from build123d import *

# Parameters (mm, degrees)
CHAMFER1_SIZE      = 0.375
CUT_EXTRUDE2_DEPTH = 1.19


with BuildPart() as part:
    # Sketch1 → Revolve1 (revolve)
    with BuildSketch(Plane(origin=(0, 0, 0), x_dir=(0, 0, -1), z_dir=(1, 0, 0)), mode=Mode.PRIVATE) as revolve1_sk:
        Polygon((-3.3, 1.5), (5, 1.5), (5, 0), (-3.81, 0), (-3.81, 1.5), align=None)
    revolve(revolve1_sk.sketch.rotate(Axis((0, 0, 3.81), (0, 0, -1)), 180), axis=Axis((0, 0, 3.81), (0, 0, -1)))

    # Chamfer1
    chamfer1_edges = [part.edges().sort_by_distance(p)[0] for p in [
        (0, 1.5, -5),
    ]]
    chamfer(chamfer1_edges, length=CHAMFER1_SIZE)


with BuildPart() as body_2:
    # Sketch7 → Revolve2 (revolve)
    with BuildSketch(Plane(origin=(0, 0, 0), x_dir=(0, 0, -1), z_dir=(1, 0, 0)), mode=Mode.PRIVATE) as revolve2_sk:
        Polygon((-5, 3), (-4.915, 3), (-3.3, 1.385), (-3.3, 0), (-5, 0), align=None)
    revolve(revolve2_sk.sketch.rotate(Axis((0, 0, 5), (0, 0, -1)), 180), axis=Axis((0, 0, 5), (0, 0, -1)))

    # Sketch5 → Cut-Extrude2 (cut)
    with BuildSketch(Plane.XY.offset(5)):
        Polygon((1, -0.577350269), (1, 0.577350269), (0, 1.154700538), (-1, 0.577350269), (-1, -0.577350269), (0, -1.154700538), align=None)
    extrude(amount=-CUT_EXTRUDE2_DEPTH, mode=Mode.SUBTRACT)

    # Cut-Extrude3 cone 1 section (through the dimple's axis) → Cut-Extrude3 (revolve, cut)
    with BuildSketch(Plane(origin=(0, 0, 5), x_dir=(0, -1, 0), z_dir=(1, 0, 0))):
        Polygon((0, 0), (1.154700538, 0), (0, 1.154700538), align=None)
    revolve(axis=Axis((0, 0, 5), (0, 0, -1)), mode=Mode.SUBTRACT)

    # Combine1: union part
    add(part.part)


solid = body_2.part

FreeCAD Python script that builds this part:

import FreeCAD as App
import Part
import Sketcher
Q = App.Units.Quantity


def edges_at(feature, points):
    """Names of the edges that pass closest to the given points."""
    edges = feature.Shape.Edges
    near = lambda p: min(range(len(edges)), key=lambda i: edges[i].distToShape(Part.Vertex(*p))[0])
    return sorted({f"Edge{near(p) + 1}" for p in points})

doc = App.newDocument("Part")
body = doc.addObject("PartDesign::Body", "Body")

# Sketch on YZ plane
sketch1 = body.newObject("Sketcher::SketchObject", "Sketch")
sketch1.AttachmentSupport = (doc.getObject("YZ_Plane"), [""])
sketch1.MapMode = "FlatFace"
sketch1.addGeometry(Part.LineSegment(App.Vector(1.5, -5, 0), App.Vector(1.5, 3.81, 0)), False)
sketch1.addGeometry(Part.LineSegment(App.Vector(1.5, 3.81, 0), App.Vector(0, 3.81, 0)), False)
sketch1.addGeometry(Part.LineSegment(App.Vector(0, 3.81, 0), App.Vector(0, -5, 0)), False)
sketch1.addGeometry(Part.LineSegment(App.Vector(0, -5, 0), App.Vector(1.5, -5, 0)), False)
sketch1.addConstraint(Sketcher.Constraint("Coincident", 0, 2, 1, 1))
sketch1.addConstraint(Sketcher.Constraint("Coincident", 1, 2, 2, 1))
sketch1.addConstraint(Sketcher.Constraint("Coincident", 2, 2, 3, 1))
sketch1.addConstraint(Sketcher.Constraint("Coincident", 3, 2, 0, 1))
sketch1.addConstraint(Sketcher.Constraint("Vertical", 0))
sketch1.addConstraint(Sketcher.Constraint("Horizontal", 1))
sketch1.addConstraint(Sketcher.Constraint("Vertical", 2))
sketch1.addConstraint(Sketcher.Constraint("Horizontal", 3))
sketch1.addConstraint(Sketcher.Constraint("PointOnObject", 1, 2, -2))
sketch1.addConstraint(Sketcher.Constraint("DistanceX", 1, 2, 1, 1, Q("1.5 mm")))
sketch1.addConstraint(Sketcher.Constraint("DistanceY", 2, 2, -1, 1, Q("5 mm")))
sketch1.addConstraint(Sketcher.Constraint("DistanceY", 0, 1, 0, 2, Q("8.81 mm")))
revolution = body.newObject("PartDesign::Revolution", "Revolution")
revolution.Profile = sketch1
revolution.ReferenceAxis = (sketch1, ["V_Axis"])
revolution.Angle = 360
doc.recompute()

chamfer = body.newObject("PartDesign::Chamfer", "Chamfer")
chamfer.Base = (revolution, edges_at(revolution, [(0, 1.5, -5)]))
chamfer.Size = 0.375
body2 = doc.addObject("PartDesign::Body", "Body001")

# Sketch on YZ plane
sketch2 = body2.newObject("Sketcher::SketchObject", "Sketch001")
sketch2.AttachmentSupport = (doc.getObject("YZ_Plane001"), [""])
sketch2.MapMode = "FlatFace"
sketch2.addGeometry(Part.LineSegment(App.Vector(3, 4.915, 0), App.Vector(3, 5, 0)), False)
sketch2.addGeometry(Part.LineSegment(App.Vector(3, 5, 0), App.Vector(0, 5, 0)), False)
sketch2.addGeometry(Part.LineSegment(App.Vector(0, 5, 0), App.Vector(0, 3.3, 0)), False)
sketch2.addGeometry(Part.LineSegment(App.Vector(0, 3.3, 0), App.Vector(1.385, 3.3, 0)), False)
sketch2.addGeometry(Part.LineSegment(App.Vector(1.385, 3.3, 0), App.Vector(3, 4.915, 0)), False)
sketch2.addConstraint(Sketcher.Constraint("Coincident", 0, 2, 1, 1))
sketch2.addConstraint(Sketcher.Constraint("Coincident", 1, 2, 2, 1))
sketch2.addConstraint(Sketcher.Constraint("Coincident", 2, 2, 3, 1))
sketch2.addConstraint(Sketcher.Constraint("Coincident", 3, 2, 4, 1))
sketch2.addConstraint(Sketcher.Constraint("Coincident", 4, 2, 0, 1))
sketch2.addConstraint(Sketcher.Constraint("Vertical", 0))
sketch2.addConstraint(Sketcher.Constraint("Horizontal", 1))
sketch2.addConstraint(Sketcher.Constraint("Vertical", 2))
sketch2.addConstraint(Sketcher.Constraint("Horizontal", 3))
sketch2.addConstraint(Sketcher.Constraint("PointOnObject", 1, 2, -2))
sketch2.addConstraint(Sketcher.Constraint("DistanceX", 1, 2, 1, 1, Q("3 mm")))
sketch2.addConstraint(Sketcher.Constraint("Angle", 4, Q("45 deg")))
sketch2.addConstraint(Sketcher.Constraint("DistanceY", 2, 2, 2, 1, Q("1.7 mm")))
sketch2.addConstraint(Sketcher.Constraint("DistanceY", -1, 1, 0, 2, Q("5 mm")))
sketch2.addConstraint(Sketcher.Constraint("DistanceX", 3, 1, 3, 2, Q("1.385 mm")))
revolution2 = body2.newObject("PartDesign::Revolution", "Revolution001")
revolution2.Profile = sketch2
revolution2.ReferenceAxis = (sketch2, ["V_Axis"])
revolution2.Angle = 360

# Sketch on XY plane
sketch3 = body2.newObject("Sketcher::SketchObject", "Sketch002")
sketch3.AttachmentSupport = (doc.getObject("XY_Plane001"), [""])
sketch3.MapMode = "FlatFace"
sketch3.AttachmentOffset = App.Placement(App.Vector(0, 0, 5), App.Rotation())
sketch3.addGeometry(Part.LineSegment(App.Vector(1, -0.57735, 0), App.Vector(1, 0.57735, 0)), False)
sketch3.addGeometry(Part.LineSegment(App.Vector(1, 0.57735, 0), App.Vector(0, 1.154701, 0)), False)
sketch3.addGeometry(Part.LineSegment(App.Vector(0, 1.154701, 0), App.Vector(-1, 0.57735, 0)), False)
sketch3.addGeometry(Part.LineSegment(App.Vector(-1, 0.57735, 0), App.Vector(-1, -0.57735, 0)), False)
sketch3.addGeometry(Part.LineSegment(App.Vector(-1, -0.57735, 0), App.Vector(0, -1.154701, 0)), False)
sketch3.addGeometry(Part.LineSegment(App.Vector(0, -1.154701, 0), App.Vector(1, -0.57735, 0)), False)
sketch3.addConstraint(Sketcher.Constraint("Coincident", 0, 2, 1, 1))
sketch3.addConstraint(Sketcher.Constraint("Coincident", 1, 2, 2, 1))
sketch3.addConstraint(Sketcher.Constraint("Coincident", 2, 2, 3, 1))
sketch3.addConstraint(Sketcher.Constraint("Coincident", 3, 2, 4, 1))
sketch3.addConstraint(Sketcher.Constraint("Coincident", 4, 2, 5, 1))
sketch3.addConstraint(Sketcher.Constraint("Coincident", 5, 2, 0, 1))
sketch3.addConstraint(Sketcher.Constraint("Vertical", 0))
sketch3.addConstraint(Sketcher.Constraint("Vertical", 3))
sketch3.addConstraint(Sketcher.Constraint("Symmetric", 0, 2, 3, 2, -1, 1))
sketch3.addConstraint(Sketcher.Constraint("Symmetric", 1, 2, 4, 2, -1, 1))
sketch3.addConstraint(Sketcher.Constraint("PointOnObject", 1, 2, -2))
sketch3.addConstraint(Sketcher.Constraint("Parallel", 2, 5))
sketch3.addConstraint(Sketcher.Constraint("Horizontal", 0, 2, 2, 2))
sketch3.addConstraint(Sketcher.Constraint("Angle", 1, Q("150 deg")))
sketch3.addConstraint(Sketcher.Constraint("DistanceX", -1, 1, 0, 2, Q("1 mm")))
sketch3.addConstraint(Sketcher.Constraint("DistanceY", 0, 1, 0, 2, Q("1.154701 mm")))
pocket1 = body2.newObject("PartDesign::Pocket", "Pocket")
pocket1.Profile = sketch3
pocket1.Length = 1.19

# Sketch on YZ plane
sketch4 = body2.newObject("Sketcher::SketchObject", "Sketch003")
sketch4.AttachmentSupport = (doc.getObject("YZ_Plane001"), [""])
sketch4.MapMode = "FlatFace"
sketch4.addGeometry(Part.LineSegment(App.Vector(0, 5, 0), App.Vector(-1.154701, 5, 0)), False)
sketch4.addGeometry(Part.LineSegment(App.Vector(-1.154701, 5, 0), App.Vector(0, 3.845299, 0)), False)
sketch4.addGeometry(Part.LineSegment(App.Vector(0, 3.845299, 0), App.Vector(0, 5, 0)), False)
sketch4.addConstraint(Sketcher.Constraint("Coincident", 0, 2, 1, 1))
sketch4.addConstraint(Sketcher.Constraint("Coincident", 1, 2, 2, 1))
sketch4.addConstraint(Sketcher.Constraint("Coincident", 2, 2, 0, 1))
sketch4.addConstraint(Sketcher.Constraint("Horizontal", 0))
sketch4.addConstraint(Sketcher.Constraint("Vertical", 2))
sketch4.addConstraint(Sketcher.Constraint("PointOnObject", 1, 2, -2))
sketch4.addConstraint(Sketcher.Constraint("Equal", 0, 2))
sketch4.addConstraint(Sketcher.Constraint("DistanceY", -1, 1, 0, 2, Q("5 mm")))
sketch4.addConstraint(Sketcher.Constraint("DistanceX", 0, 2, 0, 1, Q("1.154701 mm")))
groove = body2.newObject("PartDesign::Groove", "Groove")
groove.Profile = sketch4
groove.ReferenceAxis = (sketch4, ["V_Axis"])
groove.Angle = 360
doc.recompute()

boolean = body2.newObject("PartDesign::Boolean", "Boolean")
boolean.Type = "Fuse"
boolean.addObjects([body])

doc.recompute()
